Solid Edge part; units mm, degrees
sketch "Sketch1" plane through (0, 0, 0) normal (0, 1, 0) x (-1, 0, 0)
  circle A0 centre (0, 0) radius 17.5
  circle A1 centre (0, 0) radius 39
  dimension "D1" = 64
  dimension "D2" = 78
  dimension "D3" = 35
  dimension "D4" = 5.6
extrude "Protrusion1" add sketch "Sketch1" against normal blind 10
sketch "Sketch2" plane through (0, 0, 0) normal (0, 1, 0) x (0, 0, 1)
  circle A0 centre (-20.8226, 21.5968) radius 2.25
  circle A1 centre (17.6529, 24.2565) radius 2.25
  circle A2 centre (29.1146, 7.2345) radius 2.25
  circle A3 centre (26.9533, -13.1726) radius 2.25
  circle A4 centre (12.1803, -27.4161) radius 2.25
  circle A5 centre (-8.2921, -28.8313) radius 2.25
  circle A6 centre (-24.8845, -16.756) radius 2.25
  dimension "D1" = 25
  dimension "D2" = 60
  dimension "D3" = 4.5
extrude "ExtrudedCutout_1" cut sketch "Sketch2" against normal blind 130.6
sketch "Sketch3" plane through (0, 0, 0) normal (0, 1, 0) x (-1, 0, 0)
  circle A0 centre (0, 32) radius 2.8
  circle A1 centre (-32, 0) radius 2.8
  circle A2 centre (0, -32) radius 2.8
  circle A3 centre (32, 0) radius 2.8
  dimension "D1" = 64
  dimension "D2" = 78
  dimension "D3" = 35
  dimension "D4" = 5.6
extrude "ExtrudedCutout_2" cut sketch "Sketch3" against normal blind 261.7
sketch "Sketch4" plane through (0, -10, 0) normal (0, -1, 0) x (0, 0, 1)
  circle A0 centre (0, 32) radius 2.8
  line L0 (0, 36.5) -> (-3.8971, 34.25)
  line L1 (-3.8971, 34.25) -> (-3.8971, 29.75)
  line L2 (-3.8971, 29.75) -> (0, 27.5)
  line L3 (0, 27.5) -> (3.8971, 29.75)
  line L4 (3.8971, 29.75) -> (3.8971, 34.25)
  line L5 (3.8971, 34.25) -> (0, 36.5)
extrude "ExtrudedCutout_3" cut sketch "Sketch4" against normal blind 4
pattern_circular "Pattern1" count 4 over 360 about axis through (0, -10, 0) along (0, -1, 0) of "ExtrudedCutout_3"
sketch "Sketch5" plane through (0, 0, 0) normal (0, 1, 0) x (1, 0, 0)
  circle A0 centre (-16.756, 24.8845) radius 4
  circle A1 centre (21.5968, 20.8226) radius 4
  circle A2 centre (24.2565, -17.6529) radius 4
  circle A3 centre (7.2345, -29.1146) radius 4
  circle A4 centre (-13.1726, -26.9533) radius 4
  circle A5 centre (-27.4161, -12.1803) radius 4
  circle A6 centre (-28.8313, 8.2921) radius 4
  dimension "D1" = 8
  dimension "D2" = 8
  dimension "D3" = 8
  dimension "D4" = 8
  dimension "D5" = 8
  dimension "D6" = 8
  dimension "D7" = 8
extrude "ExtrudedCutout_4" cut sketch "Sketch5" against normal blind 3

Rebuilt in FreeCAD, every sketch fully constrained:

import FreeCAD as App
import Part
import Sketcher
from FreeCAD import Vector
Q = App.Units.Quantity

doc = App.newDocument("Part")
body = doc.addObject("PartDesign::Body", "Body")

# Sketch on XZ plane
sketch1 = body.newObject("Sketcher::SketchObject", "Sketch")
sketch1.AttachmentSupport = (doc.getObject("XZ_Plane"), [""])
sketch1.MapMode = "FlatFace"
sketch1.addGeometry([
    Part.Circle(Vector(0, 0, 0), Vector(0, 0, 1), 39),
    Part.Circle(Vector(0, 0, 0), Vector(0, 0, 1), 18),
], False)
sketch1.addConstraint([
    Sketcher.Constraint("Coincident", 0, 3, -1, 1),
    Sketcher.Constraint("Coincident", 1, 3, -1, 1),
    Sketcher.Constraint("Diameter", 0, 78.0),
    Sketcher.Constraint("Diameter", 1, 35.0),
])
pad1 = body.newObject("PartDesign::Pad", "Pad")
pad1.Profile = sketch1
pad1.Length = 10

# Sketch on XZ plane
sketch2 = body.newObject("Sketcher::SketchObject", "Sketch001")
sketch2.AttachmentSupport = (doc.getObject("XZ_Plane"), [""])
sketch2.MapMode = "FlatFace"
sketch2.addGeometry([
    Part.Circle(Vector(21.6, -20.8, 0), Vector(0, 0, 1), 2.2),  # 0
    Part.Circle(Vector(24.3, 17.7, 0), Vector(0, 0, 1), 2.2),  # 1
    Part.Circle(Vector(7.2, 29.1, 0), Vector(0, 0, 1), 2.2),  # 2
    Part.Circle(Vector(-13.2, 27, 0), Vector(0, 0, 1), 2.2),  # 3
    Part.Circle(Vector(-27.4, 12.2, 0), Vector(0, 0, 1), 2.2),  # 4
    Part.Circle(Vector(-28.8, -8.3, 0), Vector(0, 0, 1), 2.2),  # 5
    Part.Circle(Vector(-16.8, -24.9, 0), Vector(0, 0, 1), 2.2),  # 6
], False)
sketch2.addConstraint([
    Sketcher.Constraint("Equal", 0, 1),
    Sketcher.Constraint("Equal", 1, 2),
    Sketcher.Constraint("Equal", 2, 3),
    Sketcher.Constraint("Equal", 3, 4),
    Sketcher.Constraint("Equal", 4, 5),
    Sketcher.Constraint("Equal", 5, 6),
    Sketcher.Constraint("Diameter", 0, 4.5),
    Sketcher.Constraint("DistanceX", 4, 3, 6, 3, 10.66),
    Sketcher.Constraint("DistanceY", -1, 1, 1, 3, 17.653),
    Sketcher.Constraint("DistanceX", 4, 3, -1, 1, 27.416),
    Sketcher.Constraint("DistanceY", 5, 3, -1, 1, 8.292),
    Sketcher.Constraint("DistanceX", 2, 3, 1, 3, 17.022),
    Sketcher.Constraint("DistanceX", 3, 3, 2, 3, 20.407),
    Sketcher.Constraint("DistanceY", 0, 3, 3, 3, 47.776),
    Sketcher.Constraint("DistanceY", 4, 3, 3, 3, 14.773),
    Sketcher.Constraint("DistanceX", 4, 3, 0, 3, 49.013),
    Sketcher.Constraint("DistanceX", 5, 3, 0, 3, 50.428),
    Sketcher.Constraint("DistanceY", 6, 3, 0, 3, 4.062),
    Sketcher.Constraint("DistanceY", 6, 3, 2, 3, 53.999),
    Sketcher.Constraint("DistanceY", 0, 3, -1, 1, 20.8226),
    Sketcher.Constraint("DistanceX", -1, 1, 1, 3, 24.2565),
])
pocket1 = body.newObject("PartDesign::Pocket", "Pocket")
pocket1.Profile = sketch2
pocket1.Length = 130.6
pocket1.Reversed = True

# Sketch on XZ plane
sketch3 = body.newObject("Sketcher::SketchObject", "Sketch002")
sketch3.AttachmentSupport = (doc.getObject("XZ_Plane"), [""])
sketch3.MapMode = "FlatFace"
sketch3.addGeometry([
    Part.Circle(Vector(0, 32, 0), Vector(0, 0, 1), 2.8),
    Part.Circle(Vector(32, 0, 0), Vector(0, 0, 1), 2.8),
    Part.Circle(Vector(0, -32, 0), Vector(0, 0, 1), 2.8),
    Part.Circle(Vector(-32, 0, 0), Vector(0, 0, 1), 2.8),
], False)
sketch3.addConstraint([
    Sketcher.Constraint("Equal", 0, 1),
    Sketcher.Constraint("Equal", 1, 2),
    Sketcher.Constraint("Equal", 2, 3),
    Sketcher.Constraint("Symmetric", 0, 3, 2, 3, -1, 1),
    Sketcher.Constraint("Symmetric", 1, 3, 3, 3, -1, 1),
    Sketcher.Constraint("PointOnObject", 0, 3, -2),
    Sketcher.Constraint("PointOnObject", 1, 3, -1),
    Sketcher.Constraint("Diameter", 0, 5.6),
    Sketcher.Constraint("DistanceY", -1, 1, 0, 3, 32.0),
    Sketcher.Constraint("DistanceX", -1, 1, 1, 3, 32.0),
])
pocket2 = body.newObject("PartDesign::Pocket", "Pocket001")
pocket2.Profile = sketch3
pocket2.Length = 261.7
pocket2.Reversed = True

# Sketch on XZ plane
sketch4 = body.newObject("Sketcher::SketchObject", "Sketch003")
sketch4.AttachmentSupport = (doc.getObject("XZ_Plane"), [""])
sketch4.MapMode = "FlatFace"
sketch4.AttachmentOffset = App.Placement(Vector(0, 0, 10), App.Rotation())
sketch4.addGeometry([
    Part.LineSegment(Vector(-34.2, 3.9, 0), Vector(-36.5, 0, 0)),  # 0
    Part.LineSegment(Vector(-36.5, 0, 0), Vector(-34.2, -3.9, 0)),  # 1
    Part.LineSegment(Vector(-34.2, -3.9, 0), Vector(-29.8, -3.9, 0)),  # 2
    Part.LineSegment(Vector(-29.8, -3.9, 0), Vector(-27.5, 0, 0)),  # 3
    Part.LineSegment(Vector(-27.5, 0, 0), Vector(-29.8, 3.9, 0)),  # 4
    Part.LineSegment(Vector(-29.8, 3.9, 0), Vector(-34.2, 3.9, 0)),  # 5
    Part.Circle(Vector(-32, 0, 0), Vector(0, 0, 1), 2.8),  # 6
], False)
sketch4.addConstraint([
    Sketcher.Constraint("Coincident", 0, 2, 1, 1),
    Sketcher.Constraint("Coincident", 1, 2, 2, 1),
    Sketcher.Constraint("Coincident", 2, 2, 3, 1),
    Sketcher.Constraint("Coincident", 3, 2, 4, 1),
    Sketcher.Constraint("Coincident", 4, 2, 5, 1),
    Sketcher.Constraint("Coincident", 5, 2, 0, 1),
    Sketcher.Constraint("Horizontal", 2),
    Sketcher.Constraint("Horizontal", 5),
    Sketcher.Constraint("Symmetric", 2, 2, 4, 2, -1),
    Sketcher.Constraint("PointOnObject", 6, 3, -1),
    Sketcher.Constraint("PointOnObject", 0, 2, -1),
    Sketcher.Constraint("PointOnObject", 3, 2, -1),
    Sketcher.Constraint("Parallel", 0, 3),
    Sketcher.Constraint("Parallel", 1, 4),
    Sketcher.Constraint("Diameter", 6, 5.6),
    Sketcher.Constraint("Angle", 0, Q("-120 deg")),
    Sketcher.Constraint("DistanceX", 2, 1, 2, 2, 4.5),
    Sketcher.Constraint("DistanceX", 6, 3, -1, 1, 32.0),
    Sketcher.Constraint("DistanceX", 0, 2, 3, 2, 9.0),
    Sketcher.Constraint("DistanceX", 0, 2, -1, 1, 36.5),
])
pocket3 = body.newObject("PartDesign::Pocket", "Pocket002")
pocket3.Profile = sketch4
pocket3.Length = 4
doc.recompute()

polarpattern = body.newObject("PartDesign::PolarPattern", "PolarPattern")
polarpattern.Originals = [pocket3]
polarpattern.Axis = (doc.getObject("Y_Axis"), [""])
polarpattern.Angle = 360
polarpattern.Occurrences = 4
body.Tip = polarpattern

# Sketch on XZ plane
sketch5 = body.newObject("Sketcher::SketchObject", "Sketch004")
sketch5.AttachmentSupport = (doc.getObject("XZ_Plane"), [""])
sketch5.MapMode = "FlatFace"
sketch5.addGeometry([
    Part.Circle(Vector(-16.8, -24.9, 0), Vector(0, 0, 1), 4),  # 0
    Part.Circle(Vector(21.6, -20.8, 0), Vector(0, 0, 1), 4),  # 1
    Part.Circle(Vector(24.3, 17.7, 0), Vector(0, 0, 1), 4),  # 2
    Part.Circle(Vector(7.2, 29.1, 0), Vector(0, 0, 1), 4),  # 3
    Part.Circle(Vector(-13.2, 27, 0), Vector(0, 0, 1), 4),  # 4
    Part.Circle(Vector(-27.4, 12.2, 0), Vector(0, 0, 1), 4),  # 5
    Part.Circle(Vector(-28.8, -8.3, 0), Vector(0, 0, 1), 4),  # 6
], False)
sketch5.addConstraint([
    Sketcher.Constraint("Equal", 0, 1),
    Sketcher.Constraint("Equal", 1, 2),
    Sketcher.Constraint("Equal", 2, 3),
    Sketcher.Constraint("Equal", 3, 4),
    Sketcher.Constraint("Equal", 4, 5),
    Sketcher.Constraint("Equal", 5, 6),
    Sketcher.Constraint("Diameter", 0, 8.0),
    Sketcher.Constraint("DistanceX", 5, 3, 0, 3, 10.66),
    Sketcher.Constraint("DistanceX", 0, 3, -1, 1, 16.756),
    Sketcher.Constraint("DistanceY", -1, 1, 2, 3, 17.653),
    Sketcher.Constraint("DistanceY", 6, 3, -1, 1, 8.292),
    Sketcher.Constraint("DistanceY", 0, 3, 1, 3, 4.062),
    Sketcher.Constraint("DistanceX", 3, 3, 2, 3, 17.022),
    Sketcher.Constraint("DistanceY", 0, 3, 3, 3, 53.999),
    Sketcher.Constraint("DistanceX", 4, 3, 3, 3, 20.407),
    Sketcher.Constraint("DistanceY", 1, 3, 4, 3, 47.776),
    Sketcher.Constraint("DistanceY", 5, 3, 4, 3, 14.773),
    Sketcher.Constraint("DistanceX", 5, 3, 1, 3, 49.013),
    Sketcher.Constraint("DistanceX", 6, 3, 1, 3, 50.428),
    Sketcher.Constraint("DistanceY", 0, 3, -1, 1, 24.8845),
    Sketcher.Constraint("DistanceX", -1, 1, 2, 3, 24.2565),
])
pocket4 = body.newObject("PartDesign::Pocket", "Pocket003")
pocket4.Profile = sketch5
pocket4.Length = 3
pocket4.Reversed = True

doc.recompute()
